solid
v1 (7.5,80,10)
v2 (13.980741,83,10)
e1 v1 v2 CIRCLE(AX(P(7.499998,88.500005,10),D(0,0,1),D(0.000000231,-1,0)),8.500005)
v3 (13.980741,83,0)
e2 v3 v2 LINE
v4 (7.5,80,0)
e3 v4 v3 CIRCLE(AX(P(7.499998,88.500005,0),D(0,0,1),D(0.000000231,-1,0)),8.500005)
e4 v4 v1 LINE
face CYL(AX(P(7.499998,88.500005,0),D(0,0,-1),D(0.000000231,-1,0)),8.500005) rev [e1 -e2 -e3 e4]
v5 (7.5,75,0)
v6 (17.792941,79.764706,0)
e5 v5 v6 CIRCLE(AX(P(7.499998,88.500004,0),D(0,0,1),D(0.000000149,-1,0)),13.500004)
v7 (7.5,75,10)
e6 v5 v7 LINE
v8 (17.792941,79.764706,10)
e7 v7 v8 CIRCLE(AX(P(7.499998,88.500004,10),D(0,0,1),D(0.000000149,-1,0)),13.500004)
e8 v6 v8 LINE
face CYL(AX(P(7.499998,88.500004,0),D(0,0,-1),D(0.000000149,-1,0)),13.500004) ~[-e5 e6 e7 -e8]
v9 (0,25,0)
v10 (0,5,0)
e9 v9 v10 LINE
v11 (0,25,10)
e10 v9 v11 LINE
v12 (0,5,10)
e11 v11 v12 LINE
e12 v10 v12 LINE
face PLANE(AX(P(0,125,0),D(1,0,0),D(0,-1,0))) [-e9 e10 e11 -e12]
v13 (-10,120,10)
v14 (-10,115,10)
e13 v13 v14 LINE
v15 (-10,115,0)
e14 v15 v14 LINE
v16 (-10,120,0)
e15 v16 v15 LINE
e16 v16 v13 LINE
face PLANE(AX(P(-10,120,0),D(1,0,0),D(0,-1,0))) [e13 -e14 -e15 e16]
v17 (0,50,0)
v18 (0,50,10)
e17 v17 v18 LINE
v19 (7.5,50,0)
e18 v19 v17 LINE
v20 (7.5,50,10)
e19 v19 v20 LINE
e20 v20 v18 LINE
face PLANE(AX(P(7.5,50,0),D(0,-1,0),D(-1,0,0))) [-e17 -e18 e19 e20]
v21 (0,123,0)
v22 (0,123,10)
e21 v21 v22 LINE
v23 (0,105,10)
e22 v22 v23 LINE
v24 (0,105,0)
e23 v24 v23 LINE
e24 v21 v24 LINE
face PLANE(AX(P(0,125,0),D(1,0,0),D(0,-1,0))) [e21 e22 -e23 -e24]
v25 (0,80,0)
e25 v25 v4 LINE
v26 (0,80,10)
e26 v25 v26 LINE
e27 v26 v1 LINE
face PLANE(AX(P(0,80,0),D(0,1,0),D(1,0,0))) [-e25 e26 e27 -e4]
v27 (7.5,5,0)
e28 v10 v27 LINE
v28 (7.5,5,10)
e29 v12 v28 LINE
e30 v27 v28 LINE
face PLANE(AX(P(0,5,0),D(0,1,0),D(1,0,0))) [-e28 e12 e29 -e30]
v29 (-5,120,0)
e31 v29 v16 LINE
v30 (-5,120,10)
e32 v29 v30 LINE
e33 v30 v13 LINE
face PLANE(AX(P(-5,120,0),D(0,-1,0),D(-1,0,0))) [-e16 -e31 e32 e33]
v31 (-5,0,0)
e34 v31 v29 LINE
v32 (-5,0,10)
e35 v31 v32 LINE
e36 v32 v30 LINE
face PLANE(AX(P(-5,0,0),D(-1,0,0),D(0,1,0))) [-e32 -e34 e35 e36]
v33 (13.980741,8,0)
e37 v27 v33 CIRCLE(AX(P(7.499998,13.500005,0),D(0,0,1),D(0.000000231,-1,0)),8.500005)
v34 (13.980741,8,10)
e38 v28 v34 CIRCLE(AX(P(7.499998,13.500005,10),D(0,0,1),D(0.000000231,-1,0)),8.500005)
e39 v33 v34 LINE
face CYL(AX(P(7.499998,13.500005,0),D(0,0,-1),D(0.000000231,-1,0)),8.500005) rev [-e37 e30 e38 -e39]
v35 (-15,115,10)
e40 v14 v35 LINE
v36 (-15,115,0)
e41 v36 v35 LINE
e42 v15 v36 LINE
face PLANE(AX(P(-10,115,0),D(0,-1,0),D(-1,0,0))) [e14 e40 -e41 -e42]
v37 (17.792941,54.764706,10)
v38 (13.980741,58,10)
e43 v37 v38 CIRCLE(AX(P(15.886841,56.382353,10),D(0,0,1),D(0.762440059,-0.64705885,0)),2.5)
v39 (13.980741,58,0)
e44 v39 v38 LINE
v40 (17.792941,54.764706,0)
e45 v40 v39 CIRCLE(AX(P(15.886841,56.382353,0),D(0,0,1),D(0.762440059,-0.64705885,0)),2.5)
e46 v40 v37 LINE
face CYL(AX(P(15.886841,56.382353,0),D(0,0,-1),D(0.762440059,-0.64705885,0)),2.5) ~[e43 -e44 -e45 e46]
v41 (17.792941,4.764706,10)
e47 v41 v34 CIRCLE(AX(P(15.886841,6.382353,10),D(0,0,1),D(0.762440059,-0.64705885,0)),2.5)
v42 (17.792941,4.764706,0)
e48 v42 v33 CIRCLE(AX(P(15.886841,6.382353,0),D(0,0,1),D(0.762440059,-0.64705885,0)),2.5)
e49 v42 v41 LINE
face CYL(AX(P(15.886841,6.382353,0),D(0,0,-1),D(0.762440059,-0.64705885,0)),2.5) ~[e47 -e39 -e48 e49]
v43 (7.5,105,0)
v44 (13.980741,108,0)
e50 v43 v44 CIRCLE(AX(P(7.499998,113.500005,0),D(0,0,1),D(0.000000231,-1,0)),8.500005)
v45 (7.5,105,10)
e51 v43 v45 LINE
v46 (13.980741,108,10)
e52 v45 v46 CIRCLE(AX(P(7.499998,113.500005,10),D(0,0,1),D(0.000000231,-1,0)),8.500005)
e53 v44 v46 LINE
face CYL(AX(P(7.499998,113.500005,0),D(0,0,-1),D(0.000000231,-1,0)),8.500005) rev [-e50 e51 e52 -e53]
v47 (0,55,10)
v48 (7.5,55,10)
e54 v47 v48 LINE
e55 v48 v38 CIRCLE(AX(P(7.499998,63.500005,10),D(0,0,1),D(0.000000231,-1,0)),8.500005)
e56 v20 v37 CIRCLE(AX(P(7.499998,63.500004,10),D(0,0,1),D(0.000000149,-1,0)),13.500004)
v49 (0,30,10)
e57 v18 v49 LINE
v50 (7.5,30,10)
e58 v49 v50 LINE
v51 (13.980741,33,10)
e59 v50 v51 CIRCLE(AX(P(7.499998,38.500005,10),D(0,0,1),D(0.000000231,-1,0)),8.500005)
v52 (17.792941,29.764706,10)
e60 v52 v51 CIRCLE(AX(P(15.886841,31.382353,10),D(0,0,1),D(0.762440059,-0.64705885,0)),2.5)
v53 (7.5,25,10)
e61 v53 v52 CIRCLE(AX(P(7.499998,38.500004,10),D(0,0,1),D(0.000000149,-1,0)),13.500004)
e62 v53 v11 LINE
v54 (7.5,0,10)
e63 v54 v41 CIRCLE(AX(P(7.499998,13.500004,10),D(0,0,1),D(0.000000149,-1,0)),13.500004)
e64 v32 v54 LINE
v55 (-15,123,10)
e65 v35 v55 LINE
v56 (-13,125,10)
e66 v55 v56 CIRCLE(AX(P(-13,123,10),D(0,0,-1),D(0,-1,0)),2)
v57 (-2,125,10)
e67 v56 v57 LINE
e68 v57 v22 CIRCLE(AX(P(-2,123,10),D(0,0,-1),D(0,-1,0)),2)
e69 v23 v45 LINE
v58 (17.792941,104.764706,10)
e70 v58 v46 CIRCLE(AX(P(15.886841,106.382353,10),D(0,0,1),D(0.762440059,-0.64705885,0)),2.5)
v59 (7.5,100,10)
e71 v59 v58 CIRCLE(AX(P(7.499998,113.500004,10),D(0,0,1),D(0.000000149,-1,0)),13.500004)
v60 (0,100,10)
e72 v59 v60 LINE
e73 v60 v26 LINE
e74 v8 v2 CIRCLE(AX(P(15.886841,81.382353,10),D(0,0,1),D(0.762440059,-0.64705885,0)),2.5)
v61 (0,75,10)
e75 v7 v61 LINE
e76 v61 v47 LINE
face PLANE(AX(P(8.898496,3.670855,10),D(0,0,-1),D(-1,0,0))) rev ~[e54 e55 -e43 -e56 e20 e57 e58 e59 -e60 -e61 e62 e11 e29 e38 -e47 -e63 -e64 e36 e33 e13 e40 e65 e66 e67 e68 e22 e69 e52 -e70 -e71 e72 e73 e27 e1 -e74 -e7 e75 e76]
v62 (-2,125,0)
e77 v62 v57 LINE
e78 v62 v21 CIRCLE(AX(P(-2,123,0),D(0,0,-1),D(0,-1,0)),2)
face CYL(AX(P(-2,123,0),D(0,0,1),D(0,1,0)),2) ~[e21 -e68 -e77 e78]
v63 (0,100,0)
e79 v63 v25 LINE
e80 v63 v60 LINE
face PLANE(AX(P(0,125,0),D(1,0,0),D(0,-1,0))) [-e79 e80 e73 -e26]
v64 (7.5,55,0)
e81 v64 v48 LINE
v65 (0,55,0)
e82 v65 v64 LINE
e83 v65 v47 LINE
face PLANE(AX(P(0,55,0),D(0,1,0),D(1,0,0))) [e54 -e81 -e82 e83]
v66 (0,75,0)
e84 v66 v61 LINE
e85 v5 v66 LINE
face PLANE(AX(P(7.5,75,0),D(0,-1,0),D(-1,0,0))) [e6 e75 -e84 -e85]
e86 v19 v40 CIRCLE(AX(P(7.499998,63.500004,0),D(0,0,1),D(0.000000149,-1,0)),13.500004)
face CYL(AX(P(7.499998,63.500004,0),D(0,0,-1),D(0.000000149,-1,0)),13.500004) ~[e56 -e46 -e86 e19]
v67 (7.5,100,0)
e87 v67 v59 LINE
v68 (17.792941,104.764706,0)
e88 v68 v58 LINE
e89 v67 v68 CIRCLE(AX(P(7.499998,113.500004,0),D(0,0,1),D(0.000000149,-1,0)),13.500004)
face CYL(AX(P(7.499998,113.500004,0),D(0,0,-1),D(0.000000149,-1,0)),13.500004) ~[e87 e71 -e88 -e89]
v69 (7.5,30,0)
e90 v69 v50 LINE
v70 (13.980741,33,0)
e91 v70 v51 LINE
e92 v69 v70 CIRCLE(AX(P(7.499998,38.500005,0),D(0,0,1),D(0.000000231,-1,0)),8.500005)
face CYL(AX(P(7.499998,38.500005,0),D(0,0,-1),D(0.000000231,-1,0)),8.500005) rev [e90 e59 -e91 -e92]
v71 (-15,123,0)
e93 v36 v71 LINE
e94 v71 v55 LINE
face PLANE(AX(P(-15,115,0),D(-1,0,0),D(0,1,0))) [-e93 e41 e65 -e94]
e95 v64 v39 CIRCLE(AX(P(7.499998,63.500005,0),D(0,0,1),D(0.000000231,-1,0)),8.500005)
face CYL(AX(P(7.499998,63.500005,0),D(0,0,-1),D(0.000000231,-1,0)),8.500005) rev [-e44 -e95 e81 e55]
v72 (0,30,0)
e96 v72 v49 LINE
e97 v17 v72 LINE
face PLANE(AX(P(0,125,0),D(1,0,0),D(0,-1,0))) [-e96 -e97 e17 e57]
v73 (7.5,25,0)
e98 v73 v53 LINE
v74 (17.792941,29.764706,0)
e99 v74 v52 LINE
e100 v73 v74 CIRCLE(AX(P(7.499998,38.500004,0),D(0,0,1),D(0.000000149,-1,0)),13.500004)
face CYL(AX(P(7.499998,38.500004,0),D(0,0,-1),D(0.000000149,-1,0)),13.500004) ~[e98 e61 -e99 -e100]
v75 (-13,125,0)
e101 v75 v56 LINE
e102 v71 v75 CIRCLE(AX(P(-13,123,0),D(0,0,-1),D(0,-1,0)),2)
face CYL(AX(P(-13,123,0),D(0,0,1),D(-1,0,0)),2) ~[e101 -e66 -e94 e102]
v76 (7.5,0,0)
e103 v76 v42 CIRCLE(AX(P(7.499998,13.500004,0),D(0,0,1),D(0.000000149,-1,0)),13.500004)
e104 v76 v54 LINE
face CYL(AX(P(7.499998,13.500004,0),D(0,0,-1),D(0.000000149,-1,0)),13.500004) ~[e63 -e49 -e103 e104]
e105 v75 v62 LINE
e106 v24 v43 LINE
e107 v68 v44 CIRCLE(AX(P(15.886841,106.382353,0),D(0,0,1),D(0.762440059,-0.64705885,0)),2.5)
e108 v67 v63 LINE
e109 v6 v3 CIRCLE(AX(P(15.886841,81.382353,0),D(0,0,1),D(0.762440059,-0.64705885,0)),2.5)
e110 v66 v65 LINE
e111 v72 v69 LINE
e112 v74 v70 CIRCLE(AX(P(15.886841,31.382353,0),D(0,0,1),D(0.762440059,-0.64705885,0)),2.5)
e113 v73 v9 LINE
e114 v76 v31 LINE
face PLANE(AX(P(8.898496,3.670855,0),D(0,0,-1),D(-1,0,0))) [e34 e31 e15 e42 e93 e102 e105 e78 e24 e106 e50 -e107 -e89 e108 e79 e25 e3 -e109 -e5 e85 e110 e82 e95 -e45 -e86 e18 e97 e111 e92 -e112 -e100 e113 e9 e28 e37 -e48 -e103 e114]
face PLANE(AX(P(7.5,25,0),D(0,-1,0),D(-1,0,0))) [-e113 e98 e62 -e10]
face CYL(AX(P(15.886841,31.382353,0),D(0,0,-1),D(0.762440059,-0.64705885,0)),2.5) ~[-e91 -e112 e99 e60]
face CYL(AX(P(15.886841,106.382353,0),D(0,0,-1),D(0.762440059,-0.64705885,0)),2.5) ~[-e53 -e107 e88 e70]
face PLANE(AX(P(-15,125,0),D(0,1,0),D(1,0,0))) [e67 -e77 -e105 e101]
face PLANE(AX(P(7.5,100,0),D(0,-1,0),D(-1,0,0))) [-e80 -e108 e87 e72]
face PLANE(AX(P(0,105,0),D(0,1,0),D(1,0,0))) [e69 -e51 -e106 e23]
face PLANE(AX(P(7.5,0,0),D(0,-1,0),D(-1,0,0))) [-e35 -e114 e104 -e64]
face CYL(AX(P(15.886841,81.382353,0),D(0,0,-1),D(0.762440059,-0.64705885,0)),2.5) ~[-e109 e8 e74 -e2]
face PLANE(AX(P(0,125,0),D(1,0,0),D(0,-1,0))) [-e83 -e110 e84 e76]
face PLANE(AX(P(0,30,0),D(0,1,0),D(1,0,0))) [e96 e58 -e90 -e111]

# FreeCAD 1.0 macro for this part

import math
import FreeCAD as App
import Part
import Sketcher


def edges_at(feature, points):
    """Names of the edges that pass closest to the given points."""
    edges = feature.Shape.Edges
    near = lambda p: min(range(len(edges)), key=lambda i: edges[i].distToShape(Part.Vertex(*p))[0])
    return sorted({f"Edge{near(p) + 1}" for p in points})

doc = App.newDocument("Part")
body = doc.addObject("PartDesign::Body", "Body")

# Sketch on XY plane
sketch1 = doc.addObject("Sketcher::SketchObject", "Sketch")
body.addObject(sketch1)
sketch1.AttachmentSupport = (doc.XY_Plane, [""])
sketch1.MapMode = "FlatFace"
sketch1.addGeometry(Part.LineSegment(App.Vector(-5, 120, 0), App.Vector(-5, 0, 0)), False)
sketch1.addGeometry(Part.LineSegment(App.Vector(-5, 0, 0), App.Vector(0, 0, 0)), False)
sketch1.addGeometry(Part.LineSegment(App.Vector(0, 0, 0), App.Vector(0, 125, 0)), False)
sketch1.addGeometry(Part.LineSegment(App.Vector(0, 125, 0), App.Vector(-15, 125, 0)), False)
sketch1.addGeometry(Part.LineSegment(App.Vector(-15, 125, 0), App.Vector(-15, 115, 0)), False)
sketch1.addGeometry(Part.LineSegment(App.Vector(-15, 115, 0), App.Vector(-10, 115, 0)), False)
sketch1.addGeometry(Part.LineSegment(App.Vector(-10, 115, 0), App.Vector(-10, 120, 0)), False)
sketch1.addGeometry(Part.LineSegment(App.Vector(-10, 120, 0), App.Vector(-5, 120, 0)), False)
sketch1.addConstraint(Sketcher.Constraint("Coincident", 0, 2, 1, 1))
sketch1.addConstraint(Sketcher.Constraint("Coincident", 1, 2, 2, 1))
sketch1.addConstraint(Sketcher.Constraint("Coincident", 2, 2, 3, 1))
sketch1.addConstraint(Sketcher.Constraint("Coincident", 3, 2, 4, 1))
sketch1.addConstraint(Sketcher.Constraint("Coincident", 4, 2, 5, 1))
sketch1.addConstraint(Sketcher.Constraint("Coincident", 5, 2, 6, 1))
sketch1.addConstraint(Sketcher.Constraint("Coincident", 6, 2, 7, 1))
sketch1.addConstraint(Sketcher.Constraint("Coincident", 7, 2, 0, 1))
sketch1.addConstraint(Sketcher.Constraint("Vertical", 0))
sketch1.addConstraint(Sketcher.Constraint("Horizontal", 1))
sketch1.addConstraint(Sketcher.Constraint("Vertical", 2))
sketch1.addConstraint(Sketcher.Constraint("Horizontal", 3))
sketch1.addConstraint(Sketcher.Constraint("Vertical", 4))
sketch1.addConstraint(Sketcher.Constraint("Horizontal", 5))
sketch1.addConstraint(Sketcher.Constraint("Vertical", 6))
sketch1.addConstraint(Sketcher.Constraint("Horizontal", 7))
sketch1.addConstraint(Sketcher.Constraint("Coincident", 1, 2, -1, 1))
sketch1.addConstraint(Sketcher.Constraint("Equal", 1, 5))
sketch1.addConstraint(Sketcher.Constraint("Equal", 5, 7))
sketch1.addConstraint(Sketcher.Constraint("Equal", 7, 6))
sketch1.addConstraint(Sketcher.Constraint("DistanceX", 1, 1, 1, 2, 5.0))
sketch1.addConstraint(Sketcher.Constraint("DistanceY", 0, 2, 0, 1, 120.0))
sketch1.addConstraint(Sketcher.Constraint("DistanceY", 2, 1, 2, 2, 125.0))
pad1 = doc.addObject("PartDesign::Pad", "Pad")
body.addObject(pad1)
pad1.Profile = sketch1
pad1.Length = 10

# Sketch on XY plane
sketch2 = doc.addObject("Sketcher::SketchObject", "Sketch001")
body.addObject(sketch2)
sketch2.AttachmentSupport = (doc.XY_Plane, [""])
sketch2.MapMode = "FlatFace"
sketch2.addGeometry(Part.LineSegment(App.Vector(0, 5, 0), App.Vector(0, 0, 0)), False)
sketch2.addGeometry(Part.LineSegment(App.Vector(0, 0, 0), App.Vector(7.5, 0, 0)), False)
sketch2.addGeometry(Part.ArcOfCircle(Part.Circle(App.Vector(7.5, 13.5, 0), App.Vector(0, 0, 1), 13.5), math.radians(-90), math.radians(-40)), False)
sketch2.addGeometry(Part.ArcOfCircle(Part.Circle(App.Vector(15.9, 6.4, 0), App.Vector(0, 0, 1), 2.5), math.radians(-40), math.radians(140)), False)
sketch2.addGeometry(Part.ArcOfCircle(Part.Circle(App.Vector(7.5, 13.5, 0), App.Vector(0, 0, 1), 8.5), math.radians(-90), math.radians(-40)), False)
sketch2.addGeometry(Part.LineSegment(App.Vector(7.5, 5, 0), App.Vector(0, 5, 0)), False)
sketch2.addConstraint(Sketcher.Constraint("Coincident", 0, 2, 1, 1))
sketch2.addConstraint(Sketcher.Constraint("Tangent", 1, 2, 2, 1))
sketch2.addConstraint(Sketcher.Constraint("Tangent", 2, 2, 3, 1))
sketch2.addConstraint(Sketcher.Constraint("Tangent", 3, 2, 4, 2))
sketch2.addConstraint(Sketcher.Constraint("Tangent", 4, 1, 5, 1))
sketch2.addConstraint(Sketcher.Constraint("Coincident", 5, 2, 0, 1))
sketch2.addConstraint(Sketcher.Constraint("Vertical", 0))
sketch2.addConstraint(Sketcher.Constraint("Horizontal", 1))
sketch2.addConstraint(Sketcher.Constraint("Horizontal", 5))
sketch2.addConstraint(Sketcher.Constraint("Coincident", 0, 2, -1, 1))
sketch2.addConstraint(Sketcher.Constraint("Coincident", 4, 3, 2, 3))
sketch2.addConstraint(Sketcher.Constraint("Radius", 3, 2.5))
sketch2.addConstraint(Sketcher.Constraint("DistanceX", 1, 1, 1, 2, 7.5))
sketch2.addConstraint(Sketcher.Constraint("DistanceY", -1, 1, 3, 2, 8.0))
sketch2.addConstraint(Sketcher.Constraint("Radius", 2, 13.500004))
pad2 = doc.addObject("PartDesign::Pad", "Pad001")
body.addObject(pad2)
pad2.Profile = sketch2
pad2.Length = 10
doc.recompute()

linearpattern = doc.addObject("PartDesign::LinearPattern", "LinearPattern")
body.addObject(linearpattern)
linearpattern.Originals = [pad2]
linearpattern.Direction = (doc.Y_Axis, [""])
linearpattern.Mode = "offset"
linearpattern.Offset = 25
linearpattern.Occurrences = 5
body.Tip = linearpattern
doc.recompute()

fillet = doc.addObject("PartDesign::Fillet", "Fillet")
body.addObject(fillet)
fillet.Base = (linearpattern, edges_at(linearpattern, [(0, 125, 5), (-15, 125, 5)]))
fillet.Radius = 2

doc.recompute()
